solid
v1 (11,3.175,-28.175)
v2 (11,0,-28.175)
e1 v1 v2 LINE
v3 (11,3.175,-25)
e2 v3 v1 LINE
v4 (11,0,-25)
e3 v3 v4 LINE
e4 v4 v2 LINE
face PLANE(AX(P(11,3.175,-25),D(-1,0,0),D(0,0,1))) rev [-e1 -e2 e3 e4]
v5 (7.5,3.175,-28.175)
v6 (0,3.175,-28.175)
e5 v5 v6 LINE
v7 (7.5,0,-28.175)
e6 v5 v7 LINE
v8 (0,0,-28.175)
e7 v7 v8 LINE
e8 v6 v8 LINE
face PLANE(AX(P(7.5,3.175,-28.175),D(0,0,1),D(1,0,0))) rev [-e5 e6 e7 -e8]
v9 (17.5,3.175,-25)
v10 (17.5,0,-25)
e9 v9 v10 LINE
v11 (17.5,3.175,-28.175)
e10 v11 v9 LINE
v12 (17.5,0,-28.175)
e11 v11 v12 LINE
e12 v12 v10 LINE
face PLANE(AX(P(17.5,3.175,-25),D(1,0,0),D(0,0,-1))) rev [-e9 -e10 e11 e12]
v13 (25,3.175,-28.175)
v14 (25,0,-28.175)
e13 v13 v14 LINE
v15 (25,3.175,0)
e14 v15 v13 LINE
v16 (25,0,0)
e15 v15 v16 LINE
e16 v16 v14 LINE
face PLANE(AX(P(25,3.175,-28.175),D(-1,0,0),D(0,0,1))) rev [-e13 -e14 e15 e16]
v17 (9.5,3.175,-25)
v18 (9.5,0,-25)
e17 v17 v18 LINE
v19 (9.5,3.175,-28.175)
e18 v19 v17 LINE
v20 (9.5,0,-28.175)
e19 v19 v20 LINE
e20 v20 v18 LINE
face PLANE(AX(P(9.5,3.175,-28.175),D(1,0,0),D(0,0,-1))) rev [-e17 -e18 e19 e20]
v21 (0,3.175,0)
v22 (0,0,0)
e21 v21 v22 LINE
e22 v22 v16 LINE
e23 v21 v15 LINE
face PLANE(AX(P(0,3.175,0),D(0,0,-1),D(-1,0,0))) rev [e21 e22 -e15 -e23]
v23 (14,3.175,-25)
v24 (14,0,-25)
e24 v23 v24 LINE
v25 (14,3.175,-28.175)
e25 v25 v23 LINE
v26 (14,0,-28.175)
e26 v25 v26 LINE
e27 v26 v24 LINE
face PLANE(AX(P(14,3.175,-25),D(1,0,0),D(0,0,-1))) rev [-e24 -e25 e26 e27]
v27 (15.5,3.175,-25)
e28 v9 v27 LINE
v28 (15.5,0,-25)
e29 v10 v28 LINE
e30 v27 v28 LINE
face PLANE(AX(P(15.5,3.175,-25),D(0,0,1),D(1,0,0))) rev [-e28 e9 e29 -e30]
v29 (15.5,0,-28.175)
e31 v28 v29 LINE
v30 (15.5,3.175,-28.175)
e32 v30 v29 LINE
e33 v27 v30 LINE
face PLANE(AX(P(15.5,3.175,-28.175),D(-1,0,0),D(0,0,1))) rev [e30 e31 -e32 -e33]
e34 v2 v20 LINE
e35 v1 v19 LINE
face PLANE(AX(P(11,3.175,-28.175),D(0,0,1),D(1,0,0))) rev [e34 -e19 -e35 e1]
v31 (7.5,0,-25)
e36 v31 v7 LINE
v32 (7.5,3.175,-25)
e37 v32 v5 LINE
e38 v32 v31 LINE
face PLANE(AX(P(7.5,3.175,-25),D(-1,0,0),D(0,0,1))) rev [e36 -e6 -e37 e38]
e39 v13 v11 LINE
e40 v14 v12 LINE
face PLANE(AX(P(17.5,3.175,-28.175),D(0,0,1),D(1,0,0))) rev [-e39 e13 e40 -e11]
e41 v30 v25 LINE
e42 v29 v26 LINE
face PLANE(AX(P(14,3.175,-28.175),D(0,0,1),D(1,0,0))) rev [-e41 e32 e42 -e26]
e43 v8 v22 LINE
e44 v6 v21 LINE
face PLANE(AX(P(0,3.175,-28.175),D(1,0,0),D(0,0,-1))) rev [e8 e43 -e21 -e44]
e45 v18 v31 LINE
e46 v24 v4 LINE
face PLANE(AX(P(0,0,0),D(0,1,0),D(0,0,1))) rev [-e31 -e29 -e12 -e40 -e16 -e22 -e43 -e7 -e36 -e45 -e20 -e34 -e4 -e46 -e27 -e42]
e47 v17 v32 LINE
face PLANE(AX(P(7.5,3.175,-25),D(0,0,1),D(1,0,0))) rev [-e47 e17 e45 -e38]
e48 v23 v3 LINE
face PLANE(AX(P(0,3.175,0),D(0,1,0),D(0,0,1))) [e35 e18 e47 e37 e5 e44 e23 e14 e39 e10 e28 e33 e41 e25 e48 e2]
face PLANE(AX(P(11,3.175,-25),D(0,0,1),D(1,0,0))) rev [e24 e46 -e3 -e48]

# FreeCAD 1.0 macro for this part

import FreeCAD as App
import Part
import Sketcher
Q = App.Units.Quantity


def add_polygon(sketch, points):
    """Adds a closed chain of lines whose ends are joined by coincident constraints."""
    first, n = sketch.GeometryCount, len(points)
    for a, b in zip(points, points[1:] + points[:1]):
        sketch.addGeometry(Part.LineSegment(App.Vector(*a, 0), App.Vector(*b, 0)), False)
    for i in range(n):
        sketch.addConstraint(Sketcher.Constraint("Coincident", first + i, 2, first + (i + 1) % n, 1))

doc = App.newDocument("Part")
body = doc.addObject("PartDesign::Body", "Body")

sketch1 = body.newObject("Sketcher::SketchObject", "Sketch")
sketch1.AttachmentSupport = (doc.getObject("XZ_Plane"), [""])
sketch1.MapMode = "FlatFace"
add_polygon(sketch1, [(0, 0), (25, 0), (25, -28.2), (17.5, -28.2), (17.5, -25), (15.5, -25), (15.5, -28.2), (14, -28.2), (14, -25), (11, -25), (11, -28.2), (9.5, -28.2), (9.5, -25), (7.5, -25), (7.5, -28.2), (0, -28.2)])
sketch1.addConstraint([
    Sketcher.Constraint("Horizontal", 0),
    Sketcher.Constraint("Vertical", 1),
    Sketcher.Constraint("Horizontal", 2),
    Sketcher.Constraint("Vertical", 3),
    Sketcher.Constraint("Horizontal", 4),
    Sketcher.Constraint("Vertical", 5),
    Sketcher.Constraint("Horizontal", 6),
    Sketcher.Constraint("Vertical", 7),
    Sketcher.Constraint("Horizontal", 8),
    Sketcher.Constraint("Vertical", 9),
    Sketcher.Constraint("Horizontal", 10),
    Sketcher.Constraint("Vertical", 11),
    Sketcher.Constraint("Horizontal", 12),
    Sketcher.Constraint("Vertical", 13),
    Sketcher.Constraint("Horizontal", 14),
    Sketcher.Constraint("Vertical", 15),
    Sketcher.Constraint("Coincident", 15, 2, -1, 1),
    Sketcher.Constraint("Horizontal", 2, 2, 5, 2),
    Sketcher.Constraint("Horizontal", 4, 2, 7, 2),
    Sketcher.Constraint("Horizontal", 6, 2, 9, 2),
    Sketcher.Constraint("Horizontal", 8, 2, 11, 2),
    Sketcher.Constraint("Horizontal", 10, 2, 13, 2),
    Sketcher.Constraint("Equal", 6, 10),
    Sketcher.Constraint("Equal", 4, 12),
    Sketcher.Constraint("Equal", 2, 14),
    Sketcher.Constraint("DistanceX", 0, 1, 0, 2, Q("25 mm")),
    Sketcher.Constraint("DistanceX", 4, 2, 4, 1, Q("2 mm")),
    Sketcher.Constraint("DistanceX", 8, 2, 8, 1, Q("3 mm")),
    Sketcher.Constraint("DistanceX", 2, 2, 2, 1, Q("7.5 mm")),
    Sketcher.Constraint("DistanceY", 3, 2, -1, 1, Q("25 mm")),
    Sketcher.Constraint("DistanceY", 1, 2, 1, 1, Q("28.175 mm")),
])
pad1 = body.newObject("PartDesign::Pad", "Pad")
pad1.Profile = sketch1
pad1.Length = 3.175
pad1.Reversed = True

doc.recompute()
